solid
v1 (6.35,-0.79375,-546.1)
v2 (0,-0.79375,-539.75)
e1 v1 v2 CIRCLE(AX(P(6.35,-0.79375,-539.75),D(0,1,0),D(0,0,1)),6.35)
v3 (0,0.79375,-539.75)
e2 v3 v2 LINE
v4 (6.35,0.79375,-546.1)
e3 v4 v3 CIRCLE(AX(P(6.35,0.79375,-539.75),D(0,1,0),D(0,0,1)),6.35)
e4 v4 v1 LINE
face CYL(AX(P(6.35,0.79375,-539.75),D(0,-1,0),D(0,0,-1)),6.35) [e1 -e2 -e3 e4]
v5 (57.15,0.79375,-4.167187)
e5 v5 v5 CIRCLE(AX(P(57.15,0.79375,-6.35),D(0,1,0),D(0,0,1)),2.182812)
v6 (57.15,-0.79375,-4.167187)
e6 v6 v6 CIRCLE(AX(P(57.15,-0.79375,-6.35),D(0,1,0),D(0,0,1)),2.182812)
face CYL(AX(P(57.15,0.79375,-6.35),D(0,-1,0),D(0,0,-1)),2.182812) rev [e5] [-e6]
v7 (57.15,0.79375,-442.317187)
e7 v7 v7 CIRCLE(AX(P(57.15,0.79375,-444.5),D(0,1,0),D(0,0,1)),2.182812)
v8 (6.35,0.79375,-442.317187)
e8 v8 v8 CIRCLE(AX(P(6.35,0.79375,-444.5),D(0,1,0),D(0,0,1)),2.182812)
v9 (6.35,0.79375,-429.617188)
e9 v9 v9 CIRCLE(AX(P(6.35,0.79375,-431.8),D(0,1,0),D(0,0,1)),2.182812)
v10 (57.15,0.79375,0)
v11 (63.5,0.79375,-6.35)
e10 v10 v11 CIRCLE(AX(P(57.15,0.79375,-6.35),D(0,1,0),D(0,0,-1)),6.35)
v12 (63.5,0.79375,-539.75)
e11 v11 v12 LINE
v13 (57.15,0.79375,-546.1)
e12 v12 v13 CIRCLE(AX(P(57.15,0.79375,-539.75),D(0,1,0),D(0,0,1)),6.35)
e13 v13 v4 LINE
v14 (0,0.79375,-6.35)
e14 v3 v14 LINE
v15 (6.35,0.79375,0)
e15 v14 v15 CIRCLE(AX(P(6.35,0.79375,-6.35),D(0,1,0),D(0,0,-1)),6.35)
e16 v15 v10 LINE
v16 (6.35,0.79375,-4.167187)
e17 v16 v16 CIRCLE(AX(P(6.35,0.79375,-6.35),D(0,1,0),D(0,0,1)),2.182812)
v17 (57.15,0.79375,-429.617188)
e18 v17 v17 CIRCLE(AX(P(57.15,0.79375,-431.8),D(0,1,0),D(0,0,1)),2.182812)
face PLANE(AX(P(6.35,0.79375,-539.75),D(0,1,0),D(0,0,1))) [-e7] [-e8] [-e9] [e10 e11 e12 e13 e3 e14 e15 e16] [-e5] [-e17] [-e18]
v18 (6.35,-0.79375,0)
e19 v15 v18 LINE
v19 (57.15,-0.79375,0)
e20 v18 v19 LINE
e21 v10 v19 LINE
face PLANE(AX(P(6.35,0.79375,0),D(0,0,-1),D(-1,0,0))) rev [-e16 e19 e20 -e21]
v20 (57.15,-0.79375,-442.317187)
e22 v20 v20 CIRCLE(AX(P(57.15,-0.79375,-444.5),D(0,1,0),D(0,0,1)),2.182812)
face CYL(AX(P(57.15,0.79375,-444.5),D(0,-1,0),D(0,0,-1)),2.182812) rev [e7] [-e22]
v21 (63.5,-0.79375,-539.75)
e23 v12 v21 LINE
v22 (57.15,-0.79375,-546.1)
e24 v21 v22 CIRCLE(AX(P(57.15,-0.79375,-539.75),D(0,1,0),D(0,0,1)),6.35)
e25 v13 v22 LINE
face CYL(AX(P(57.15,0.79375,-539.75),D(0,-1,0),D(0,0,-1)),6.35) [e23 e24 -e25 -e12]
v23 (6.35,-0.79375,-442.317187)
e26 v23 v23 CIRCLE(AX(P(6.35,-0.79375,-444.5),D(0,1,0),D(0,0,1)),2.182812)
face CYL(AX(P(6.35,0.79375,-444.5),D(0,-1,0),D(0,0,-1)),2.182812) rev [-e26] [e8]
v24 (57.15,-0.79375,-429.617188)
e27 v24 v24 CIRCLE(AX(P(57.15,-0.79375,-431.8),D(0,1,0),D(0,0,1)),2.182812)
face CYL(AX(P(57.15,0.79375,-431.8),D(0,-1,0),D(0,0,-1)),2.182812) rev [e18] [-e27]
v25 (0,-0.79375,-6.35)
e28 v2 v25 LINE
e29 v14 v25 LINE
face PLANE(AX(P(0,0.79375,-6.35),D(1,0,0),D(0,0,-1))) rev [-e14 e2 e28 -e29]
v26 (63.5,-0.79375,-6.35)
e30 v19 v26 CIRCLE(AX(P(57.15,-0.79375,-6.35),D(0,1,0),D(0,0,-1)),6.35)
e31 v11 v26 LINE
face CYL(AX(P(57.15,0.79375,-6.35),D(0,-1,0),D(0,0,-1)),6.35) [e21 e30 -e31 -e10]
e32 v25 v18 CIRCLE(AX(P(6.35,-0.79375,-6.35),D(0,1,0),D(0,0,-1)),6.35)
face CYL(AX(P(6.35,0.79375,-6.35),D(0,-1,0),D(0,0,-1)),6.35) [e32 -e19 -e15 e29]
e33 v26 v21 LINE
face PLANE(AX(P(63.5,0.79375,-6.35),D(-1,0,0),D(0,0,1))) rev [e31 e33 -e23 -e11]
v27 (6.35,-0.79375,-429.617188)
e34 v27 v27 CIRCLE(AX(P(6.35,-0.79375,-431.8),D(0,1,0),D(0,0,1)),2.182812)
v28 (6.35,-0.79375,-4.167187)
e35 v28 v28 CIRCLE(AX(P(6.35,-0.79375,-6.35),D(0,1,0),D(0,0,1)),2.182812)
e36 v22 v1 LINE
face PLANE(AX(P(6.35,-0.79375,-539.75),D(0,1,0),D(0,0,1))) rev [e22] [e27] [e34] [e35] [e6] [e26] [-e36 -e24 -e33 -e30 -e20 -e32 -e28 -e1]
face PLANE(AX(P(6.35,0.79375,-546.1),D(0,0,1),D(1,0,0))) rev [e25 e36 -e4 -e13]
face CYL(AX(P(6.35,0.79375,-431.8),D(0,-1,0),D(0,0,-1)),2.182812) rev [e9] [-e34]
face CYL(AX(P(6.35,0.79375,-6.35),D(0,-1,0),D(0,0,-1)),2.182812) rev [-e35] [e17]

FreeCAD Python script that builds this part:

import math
import FreeCAD as App
import Part
import Sketcher
Q = App.Units.Quantity

doc = App.newDocument("Part")
body = doc.addObject("PartDesign::Body", "Body")

sketch1 = body.newObject("Sketcher::SketchObject", "Sketch")
sketch1.AttachmentSupport = (doc.getObject("XZ_Plane"), [""])
sketch1.MapMode = "FlatFace"
sketch1.addGeometry([
    Part.LineSegment(App.Vector(6.3, 0, 0), App.Vector(57.1, 0, 0)),
    Part.ArcOfCircle(Part.Circle(App.Vector(57.2, -6.3, 0), App.Vector(0, 0, 1), 6.3), math.radians(0), math.radians(90)),
    Part.LineSegment(App.Vector(63.5, -6.3, 0), App.Vector(63.5, -539.8, 0)),
    Part.ArcOfCircle(Part.Circle(App.Vector(57.2, -539.8, 0), App.Vector(0, 0, 1), 6.3), math.radians(-90), math.radians(0)),
    Part.LineSegment(App.Vector(57.1, -546.1, 0), App.Vector(6.3, -546.1, 0)),
    Part.ArcOfCircle(Part.Circle(App.Vector(6.3, -539.8, 0), App.Vector(0, 0, 1), 6.3), math.radians(180), math.radians(270)),
    Part.LineSegment(App.Vector(0, -539.8, 0), App.Vector(0, -6.3, 0)),
    Part.ArcOfCircle(Part.Circle(App.Vector(6.3, -6.3, 0), App.Vector(0, 0, 1), 6.3), math.radians(90), math.radians(180)),
    Part.Circle(App.Vector(6.3, -6.3, 0), App.Vector(0, 0, 1), 2.2),
    Part.Circle(App.Vector(57.1, -6.3, 0), App.Vector(0, 0, 1), 2.2),
    Part.Circle(App.Vector(6.3, -431.8, 0), App.Vector(0, 0, 1), 2.2),
    Part.Circle(App.Vector(6.3, -444.5, 0), App.Vector(0, 0, 1), 2.2),
    Part.Circle(App.Vector(57.1, -431.8, 0), App.Vector(0, 0, 1), 2.2),
    Part.Circle(App.Vector(57.1, -444.5, 0), App.Vector(0, 0, 1), 2.2),
], False)
sketch1.addConstraint([
    Sketcher.Constraint("Tangent", 0, 2, 1, 2),
    Sketcher.Constraint("Tangent", 1, 1, 2, 1),
    Sketcher.Constraint("Tangent", 2, 2, 3, 2),
    Sketcher.Constraint("Tangent", 3, 1, 4, 1),
    Sketcher.Constraint("Tangent", 4, 2, 5, 2),
    Sketcher.Constraint("Tangent", 5, 1, 6, 1),
    Sketcher.Constraint("Tangent", 6, 2, 7, 2),
    Sketcher.Constraint("Tangent", 7, 1, 0, 1),
    Sketcher.Constraint("Horizontal", 0),
    Sketcher.Constraint("Vertical", 2),
    Sketcher.Constraint("Horizontal", 4),
    Sketcher.Constraint("Vertical", 6),
    Sketcher.Constraint("Coincident", 8, 3, 7, 3),
    Sketcher.Constraint("Coincident", 9, 3, 1, 3),
    Sketcher.Constraint("Equal", 1, 3),
    Sketcher.Constraint("Equal", 3, 5),
    Sketcher.Constraint("Equal", 5, 7),
    Sketcher.Constraint("Equal", 8, 9),
    Sketcher.Constraint("Equal", 9, 10),
    Sketcher.Constraint("Equal", 10, 11),
    Sketcher.Constraint("Equal", 11, 12),
    Sketcher.Constraint("Equal", 12, 13),
    Sketcher.Constraint("PointOnObject", 0, 2, -1),
    Sketcher.Constraint("PointOnObject", 5, 1, -2),
    Sketcher.Constraint("Horizontal", 10, 3, 12, 3),
    Sketcher.Constraint("Horizontal", 11, 3, 13, 3),
    Sketcher.Constraint("Vertical", 8, 3, 10, 3),
    Sketcher.Constraint("Vertical", 10, 3, 11, 3),
    Sketcher.Constraint("Vertical", 9, 3, 12, 3),
    Sketcher.Constraint("Vertical", 12, 3, 13, 3),
    Sketcher.Constraint("DistanceX", 0, 1, 0, 2, Q("2 in")),
    Sketcher.Constraint("DistanceY", 2, 2, 2, 1, Q("21 in")),
    Sketcher.Constraint("Radius", 1, Q("0.25 in")),
    Sketcher.Constraint("Diameter", 8, Q("0.171875 in")),
    Sketcher.Constraint("DistanceY", 10, 3, -1, 1, Q("17 in")),
    Sketcher.Constraint("DistanceY", 3, 1, 13, 3, Q("4 in")),
])
pad1 = body.newObject("PartDesign::Pad", "Pad")
pad1.Profile = sketch1
pad1.Length = Q("0.0625 in")
pad1.Midplane = True

doc.recompute()
